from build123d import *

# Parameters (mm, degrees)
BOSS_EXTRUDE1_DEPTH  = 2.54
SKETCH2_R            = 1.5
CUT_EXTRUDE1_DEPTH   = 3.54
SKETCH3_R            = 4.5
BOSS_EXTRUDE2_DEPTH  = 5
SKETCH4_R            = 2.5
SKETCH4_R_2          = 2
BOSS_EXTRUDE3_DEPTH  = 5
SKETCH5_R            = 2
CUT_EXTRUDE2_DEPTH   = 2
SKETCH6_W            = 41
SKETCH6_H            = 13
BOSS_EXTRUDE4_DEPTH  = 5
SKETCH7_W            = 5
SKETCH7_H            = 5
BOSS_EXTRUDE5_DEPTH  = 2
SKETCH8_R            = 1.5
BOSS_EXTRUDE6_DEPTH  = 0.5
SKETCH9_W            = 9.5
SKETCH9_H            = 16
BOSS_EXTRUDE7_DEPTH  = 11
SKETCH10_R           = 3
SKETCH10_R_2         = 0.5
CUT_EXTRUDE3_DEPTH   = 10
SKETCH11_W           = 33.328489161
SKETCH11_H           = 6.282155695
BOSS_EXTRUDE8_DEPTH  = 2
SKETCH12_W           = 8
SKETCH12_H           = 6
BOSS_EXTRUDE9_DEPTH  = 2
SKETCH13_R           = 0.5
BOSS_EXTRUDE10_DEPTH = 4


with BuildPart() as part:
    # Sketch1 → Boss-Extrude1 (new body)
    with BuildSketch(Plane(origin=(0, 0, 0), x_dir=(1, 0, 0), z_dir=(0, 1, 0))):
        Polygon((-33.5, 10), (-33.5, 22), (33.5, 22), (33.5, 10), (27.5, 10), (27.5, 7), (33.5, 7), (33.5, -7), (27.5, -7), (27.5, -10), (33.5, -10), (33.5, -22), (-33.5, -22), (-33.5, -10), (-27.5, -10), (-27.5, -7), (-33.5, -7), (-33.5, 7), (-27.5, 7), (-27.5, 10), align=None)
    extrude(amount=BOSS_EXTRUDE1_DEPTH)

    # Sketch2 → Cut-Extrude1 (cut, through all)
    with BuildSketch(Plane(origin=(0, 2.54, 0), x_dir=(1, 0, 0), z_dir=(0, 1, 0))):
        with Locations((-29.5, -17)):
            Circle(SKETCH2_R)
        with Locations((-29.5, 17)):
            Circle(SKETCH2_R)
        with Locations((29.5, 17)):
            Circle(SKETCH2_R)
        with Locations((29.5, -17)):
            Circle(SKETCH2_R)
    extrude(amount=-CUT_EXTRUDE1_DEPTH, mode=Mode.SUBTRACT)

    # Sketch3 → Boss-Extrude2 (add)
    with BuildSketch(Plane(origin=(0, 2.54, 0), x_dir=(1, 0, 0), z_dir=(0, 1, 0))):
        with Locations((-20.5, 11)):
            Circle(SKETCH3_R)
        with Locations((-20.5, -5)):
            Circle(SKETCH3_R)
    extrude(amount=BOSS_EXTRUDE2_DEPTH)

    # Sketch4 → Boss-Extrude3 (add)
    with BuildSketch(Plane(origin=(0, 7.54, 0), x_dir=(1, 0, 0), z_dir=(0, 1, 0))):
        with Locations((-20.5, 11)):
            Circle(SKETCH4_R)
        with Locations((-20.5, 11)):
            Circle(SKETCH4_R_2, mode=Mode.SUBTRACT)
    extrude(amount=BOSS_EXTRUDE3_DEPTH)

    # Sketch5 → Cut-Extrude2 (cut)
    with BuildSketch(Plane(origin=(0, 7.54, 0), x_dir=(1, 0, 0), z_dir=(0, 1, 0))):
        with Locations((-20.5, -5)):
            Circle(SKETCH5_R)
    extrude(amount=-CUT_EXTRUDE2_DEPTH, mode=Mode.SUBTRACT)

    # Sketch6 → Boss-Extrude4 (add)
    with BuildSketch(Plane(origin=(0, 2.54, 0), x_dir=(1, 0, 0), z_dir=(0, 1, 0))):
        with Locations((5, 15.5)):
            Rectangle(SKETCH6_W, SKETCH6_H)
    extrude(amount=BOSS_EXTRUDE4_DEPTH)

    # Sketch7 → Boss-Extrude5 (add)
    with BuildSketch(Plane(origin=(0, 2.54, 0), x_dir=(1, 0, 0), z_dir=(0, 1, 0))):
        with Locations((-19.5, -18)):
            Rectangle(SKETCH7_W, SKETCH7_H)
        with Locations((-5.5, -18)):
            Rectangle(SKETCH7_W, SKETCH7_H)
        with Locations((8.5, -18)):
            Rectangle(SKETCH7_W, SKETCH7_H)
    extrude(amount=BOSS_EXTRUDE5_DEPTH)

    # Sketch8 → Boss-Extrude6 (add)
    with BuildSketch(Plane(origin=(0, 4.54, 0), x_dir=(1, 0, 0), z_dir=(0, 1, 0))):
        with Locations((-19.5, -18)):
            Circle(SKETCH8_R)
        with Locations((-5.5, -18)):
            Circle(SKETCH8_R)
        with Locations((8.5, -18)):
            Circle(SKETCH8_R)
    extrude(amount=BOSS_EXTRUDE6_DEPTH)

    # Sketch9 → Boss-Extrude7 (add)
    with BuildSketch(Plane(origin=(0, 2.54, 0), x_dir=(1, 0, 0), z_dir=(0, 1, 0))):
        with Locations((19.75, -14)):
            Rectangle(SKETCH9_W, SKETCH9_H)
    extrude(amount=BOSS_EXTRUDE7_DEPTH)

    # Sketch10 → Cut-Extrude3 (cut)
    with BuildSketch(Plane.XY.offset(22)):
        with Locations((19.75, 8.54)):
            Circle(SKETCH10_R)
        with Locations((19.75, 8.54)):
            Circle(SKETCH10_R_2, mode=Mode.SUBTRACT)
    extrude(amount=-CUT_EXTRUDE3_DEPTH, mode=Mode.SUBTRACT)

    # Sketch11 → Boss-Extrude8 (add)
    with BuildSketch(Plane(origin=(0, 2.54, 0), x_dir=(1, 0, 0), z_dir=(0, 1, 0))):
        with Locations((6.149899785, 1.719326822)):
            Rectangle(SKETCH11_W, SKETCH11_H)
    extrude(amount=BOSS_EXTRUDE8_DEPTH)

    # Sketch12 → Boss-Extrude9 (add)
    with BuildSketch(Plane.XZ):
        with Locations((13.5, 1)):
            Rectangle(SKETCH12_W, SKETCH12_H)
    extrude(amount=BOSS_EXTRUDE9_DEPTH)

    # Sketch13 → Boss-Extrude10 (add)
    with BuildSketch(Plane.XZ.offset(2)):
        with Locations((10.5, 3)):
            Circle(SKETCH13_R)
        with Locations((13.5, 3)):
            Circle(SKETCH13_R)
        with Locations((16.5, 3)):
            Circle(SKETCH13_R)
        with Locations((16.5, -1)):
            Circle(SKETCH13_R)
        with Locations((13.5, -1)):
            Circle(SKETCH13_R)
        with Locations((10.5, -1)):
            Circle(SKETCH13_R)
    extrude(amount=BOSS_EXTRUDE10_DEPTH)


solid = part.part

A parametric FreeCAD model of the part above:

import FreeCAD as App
import Part
import Sketcher
from FreeCAD import Vector


def add_polygon(sketch, points):
    """Adds a closed chain of lines whose ends are joined by coincident constraints."""
    first, n = sketch.GeometryCount, len(points)
    for a, b in zip(points, points[1:] + points[:1]):
        sketch.addGeometry(Part.LineSegment(App.Vector(*a, 0), App.Vector(*b, 0)), False)
    for i in range(n):
        sketch.addConstraint(Sketcher.Constraint("Coincident", first + i, 2, first + (i + 1) % n, 1))

doc = App.newDocument("Part")
body = doc.addObject("PartDesign::Body", "Body")

# Sketch on XZ plane
sketch1 = body.newObject("Sketcher::SketchObject", "Sketch")
sketch1.AttachmentSupport = (doc.getObject("XZ_Plane"), [""])
sketch1.MapMode = "FlatFace"
add_polygon(sketch1, [(-33.5, -22), (-33.5, -10), (-27.5, -10), (-27.5, -7), (-33.5, -7), (-33.5, 7), (-27.5, 7), (-27.5, 10), (-33.5, 10), (-33.5, 22), (33.5, 22), (33.5, 10), (27.5, 10), (27.5, 7), (33.5, 7), (33.5, -7), (27.5, -7), (27.5, -10), (33.5, -10), (33.5, -22)])  # lines 0-19
sketch1.addConstraint([
    Sketcher.Constraint("Vertical", 0),
    Sketcher.Constraint("Horizontal", 1),
    Sketcher.Constraint("Vertical", 2),
    Sketcher.Constraint("Horizontal", 3),
    Sketcher.Constraint("Vertical", 4),
    Sketcher.Constraint("Horizontal", 5),
    Sketcher.Constraint("Vertical", 6),
    Sketcher.Constraint("Horizontal", 7),
    Sketcher.Constraint("Vertical", 8),
    Sketcher.Constraint("Horizontal", 9),
    Sketcher.Constraint("Vertical", 10),
    Sketcher.Constraint("Horizontal", 11),
    Sketcher.Constraint("Vertical", 12),
    Sketcher.Constraint("Horizontal", 13),
    Sketcher.Constraint("Vertical", 14),
    Sketcher.Constraint("Horizontal", 15),
    Sketcher.Constraint("Vertical", 16),
    Sketcher.Constraint("Horizontal", 17),
    Sketcher.Constraint("Vertical", 18),
    Sketcher.Constraint("Horizontal", 19),
    Sketcher.Constraint("Symmetric", 0, 2, 10, 2, -1, 1),
    Sketcher.Constraint("Symmetric", 2, 2, 12, 2, -1, 1),
    Sketcher.Constraint("Symmetric", 4, 2, 14, 2, -1, 1),
    Sketcher.Constraint("Symmetric", 6, 2, 16, 2, -1, 1),
    Sketcher.Constraint("Symmetric", 8, 2, 18, 2, -1, 1),
    Sketcher.Constraint("Symmetric", 7, 2, 10, 2, -2),
    Sketcher.Constraint("Symmetric", 5, 2, 12, 2, -2),
    Sketcher.Constraint("Vertical", 0, 2, 3, 2),
    Sketcher.Constraint("DistanceX", 1, 1, 1, 2, 6.0),
    Sketcher.Constraint("DistanceX", 9, 1, 9, 2, 67.0),
    Sketcher.Constraint("DistanceY", 0, 1, 0, 2, 12.0),
    Sketcher.Constraint("DistanceY", 2, 1, 2, 2, 3.0),
    Sketcher.Constraint("DistanceY", 4, 1, 4, 2, 14.0),
])
pad1 = body.newObject("PartDesign::Pad", "Pad")
pad1.Profile = sketch1
pad1.Length = 2.54
pad1.Reversed = True

# Sketch on XZ plane
sketch2 = body.newObject("Sketcher::SketchObject", "Sketch001")
sketch2.AttachmentSupport = (doc.getObject("XZ_Plane"), [""])
sketch2.MapMode = "FlatFace"
sketch2.AttachmentOffset = App.Placement(Vector(0, 0, -2.54), App.Rotation())
sketch2.addGeometry([
    Part.Circle(Vector(-29.5, 17, 0), Vector(0, 0, 1), 1.5),
    Part.Circle(Vector(-29.5, -17, 0), Vector(0, 0, 1), 1.5),
    Part.Circle(Vector(29.5, -17, 0), Vector(0, 0, 1), 1.5),
    Part.Circle(Vector(29.5, 17, 0), Vector(0, 0, 1), 1.5),
], False)
sketch2.addConstraint([
    Sketcher.Constraint("Equal", 0, 1),
    Sketcher.Constraint("Equal", 1, 2),
    Sketcher.Constraint("Equal", 2, 3),
    Sketcher.Constraint("Symmetric", 0, 3, 2, 3, -1, 1),
    Sketcher.Constraint("Symmetric", 1, 3, 3, 3, -1, 1),
    Sketcher.Constraint("Symmetric", 1, 3, 2, 3, -2),
    Sketcher.Constraint("Diameter", 0, 3.0),
    Sketcher.Constraint("DistanceY", -1, 1, 0, 3, 17.0),
    Sketcher.Constraint("DistanceX", 1, 3, 2, 3, 59.0),
])
pocket1 = body.newObject("PartDesign::Pocket", "Pocket")
pocket1.Profile = sketch2
pocket1.Type = "ThroughAll"
pocket1.Reversed = True

# Sketch on XZ plane
sketch3 = body.newObject("Sketcher::SketchObject", "Sketch002")
sketch3.AttachmentSupport = (doc.getObject("XZ_Plane"), [""])
sketch3.MapMode = "FlatFace"
sketch3.AttachmentOffset = App.Placement(Vector(0, 0, -2.54), App.Rotation())
sketch3.addGeometry([
    Part.Circle(Vector(-20.5, -11, 0), Vector(0, 0, 1), 4.5),
    Part.Circle(Vector(-20.5, 5, 0), Vector(0, 0, 1), 4.5),
], False)
sketch3.addConstraint([
    Sketcher.Constraint("Equal", 0, 1),
    Sketcher.Constraint("Vertical", 0, 3, 1, 3),
    Sketcher.Constraint("Diameter", 0, 9.0),
    Sketcher.Constraint("DistanceY", 0, 3, -1, 1, 11.0),
    Sketcher.Constraint("DistanceY", -1, 1, 1, 3, 5.0),
    Sketcher.Constraint("DistanceX", 0, 3, -1, 1, 20.5),
])
pad2 = body.newObject("PartDesign::Pad", "Pad001")
pad2.Profile = sketch3
pad2.Length = 5
pad2.Reversed = True

# Sketch on XZ plane
sketch4 = body.newObject("Sketcher::SketchObject", "Sketch003")
sketch4.AttachmentSupport = (doc.getObject("XZ_Plane"), [""])
sketch4.MapMode = "FlatFace"
sketch4.AttachmentOffset = App.Placement(Vector(0, 0, -7.54), App.Rotation())
sketch4.addGeometry([
    Part.Circle(Vector(-20.5, -11, 0), Vector(0, 0, 1), 2.5),
    Part.Circle(Vector(-20.5, -11, 0), Vector(0, 0, 1), 2),
], False)
sketch4.addConstraint([
    Sketcher.Constraint("Coincident", 1, 3, 0, 3),
    Sketcher.Constraint("Diameter", 0, 5.0),
    Sketcher.Constraint("Diameter", 1, 4.0),
    Sketcher.Constraint("DistanceY", 0, 3, -1, 1, 11.0),
    Sketcher.Constraint("DistanceX", 0, 3, -1, 1, 20.5),
])
pad3 = body.newObject("PartDesign::Pad", "Pad002")
pad3.Profile = sketch4
pad3.Length = 5
pad3.Reversed = True

# Sketch on XZ plane
sketch5 = body.newObject("Sketcher::SketchObject", "Sketch004")
sketch5.AttachmentSupport = (doc.getObject("XZ_Plane"), [""])
sketch5.MapMode = "FlatFace"
sketch5.AttachmentOffset = App.Placement(Vector(0, 0, -7.54), App.Rotation())
sketch5.addGeometry(Part.Circle(Vector(-20.5, 5, 0), Vector(0, 0, 1), 2), False)
sketch5.addConstraint([
    Sketcher.Constraint("Diameter", 0, 4.0),
    Sketcher.Constraint("DistanceY", -1, 1, 0, 3, 5.0),
    Sketcher.Constraint("DistanceX", 0, 3, -1, 1, 20.5),
])
pocket2 = body.newObject("PartDesign::Pocket", "Pocket001")
pocket2.Profile = sketch5
pocket2.Length = 2
pocket2.Reversed = True

# Sketch on XZ plane
sketch6 = body.newObject("Sketcher::SketchObject", "Sketch005")
sketch6.AttachmentSupport = (doc.getObject("XZ_Plane"), [""])
sketch6.MapMode = "FlatFace"
sketch6.AttachmentOffset = App.Placement(Vector(0, 0, -2.54), App.Rotation())
add_polygon(sketch6, [(-16, -22), (-16, -9), (26, -9), (26, -22)])  # lines 0-3
sketch6.addConstraint([
    Sketcher.Constraint("Vertical", 0),
    Sketcher.Constraint("Horizontal", 1),
    Sketcher.Constraint("Vertical", 2),
    Sketcher.Constraint("Horizontal", 3),
    Sketcher.Constraint("DistanceX", 1, 1, 1, 2, 41.0),
    Sketcher.Constraint("DistanceY", 0, 1, 0, 2, 13.0),
    Sketcher.Constraint("DistanceY", 0, 2, -1, 1, 9.0),
    Sketcher.Constraint("DistanceX", 0, 2, -1, 1, 15.5),
])
pad4 = body.newObject("PartDesign::Pad", "Pad003")
pad4.Profile = sketch6
pad4.Length = 5
pad4.Reversed = True

# Sketch on XZ plane
sketch7 = body.newObject("Sketcher::SketchObject", "Sketch006")
sketch7.AttachmentSupport = (doc.getObject("XZ_Plane"), [""])
sketch7.MapMode = "FlatFace"
sketch7.AttachmentOffset = App.Placement(Vector(0, 0, -2.54), App.Rotation())
add_polygon(sketch7, [(-22, 16), (-22, 20), (-17, 20), (-17, 16)])  # lines 0-3
add_polygon(sketch7, [(-8, 16), (-8, 20), (-3, 20), (-3, 16)])  # lines 4-7
add_polygon(sketch7, [(6, 16), (6, 20), (11, 20), (11, 16)])  # lines 8-11
sketch7.addConstraint([
    Sketcher.Constraint("Vertical", 0),
    Sketcher.Constraint("Horizontal", 1),
    Sketcher.Constraint("Vertical", 2),
    Sketcher.Constraint("Horizontal", 3),
    Sketcher.Constraint("Vertical", 4),
    Sketcher.Constraint("Horizontal", 5),
    Sketcher.Constraint("Vertical", 6),
    Sketcher.Constraint("Horizontal", 7),
    Sketcher.Constraint("Vertical", 8),
    Sketcher.Constraint("Horizontal", 9),
    Sketcher.Constraint("Vertical", 10),
    Sketcher.Constraint("Horizontal", 11),
    Sketcher.Constraint("Horizontal", 1, 2, 4, 2),
    Sketcher.Constraint("Horizontal", 3, 2, 6, 2),
    Sketcher.Constraint("Horizontal", 5, 2, 8, 2),
    Sketcher.Constraint("Horizontal", 7, 2, 10, 2),
    Sketcher.Constraint("Equal", 3, 5),
    Sketcher.Constraint("Equal", 7, 9),
    Sketcher.Constraint("Equal", 11, 0),
    Sketcher.Constraint("DistanceX", 1, 1, 1, 2, 5.0),
    Sketcher.Constraint("DistanceX", 0, 2, -1, 1, 22.0),
    Sketcher.Constraint("DistanceX", 4, 2, -1, 1, 8.0),
    Sketcher.Constraint("DistanceX", -1, 1, 8, 2, 6.0),
    Sketcher.Constraint("DistanceY", -1, 1, 0, 2, 20.5),
])
pad5 = body.newObject("PartDesign::Pad", "Pad004")
pad5.Profile = sketch7
pad5.Length = 2
pad5.Reversed = True

# Sketch on XZ plane
sketch8 = body.newObject("Sketcher::SketchObject", "Sketch007")
sketch8.AttachmentSupport = (doc.getObject("XZ_Plane"), [""])
sketch8.MapMode = "FlatFace"
sketch8.AttachmentOffset = App.Placement(Vector(0, 0, -4.54), App.Rotation())
sketch8.addGeometry([
    Part.Circle(Vector(-19.5, 18, 0), Vector(0, 0, 1), 1.5),
    Part.Circle(Vector(-5.5, 18, 0), Vector(0, 0, 1), 1.5),
    Part.Circle(Vector(8.5, 18, 0), Vector(0, 0, 1), 1.5),
], False)
sketch8.addConstraint([
    Sketcher.Constraint("Equal", 0, 1),
    Sketcher.Constraint("Equal", 1, 2),
    Sketcher.Constraint("Horizontal", 0, 3, 1, 3),
    Sketcher.Constraint("Horizontal", 1, 3, 2, 3),
    Sketcher.Constraint("Diameter", 0, 3.0),
    Sketcher.Constraint("DistanceY", -1, 1, 0, 3, 18.0),
    Sketcher.Constraint("DistanceX", 0, 3, 1, 3, 14.0),
    Sketcher.Constraint("DistanceX", 1, 3, 2, 3, 14.0),
    Sketcher.Constraint("DistanceX", 0, 3, -1, 1, 19.5),
])
pad6 = body.newObject("PartDesign::Pad", "Pad005")
pad6.Profile = sketch8
pad6.Length = 0.5
pad6.Reversed = True

# Sketch on XZ plane
sketch9 = body.newObject("Sketcher::SketchObject", "Sketch008")
sketch9.AttachmentSupport = (doc.getObject("XZ_Plane"), [""])
sketch9.MapMode = "FlatFace"
sketch9.AttachmentOffset = App.Placement(Vector(0, 0, -2.54), App.Rotation())
add_polygon(sketch9, [(15, 6), (15, 22), (24, 22), (24, 6)])  # lines 0-3
sketch9.addConstraint([
    Sketcher.Constraint("Vertical", 0),
    Sketcher.Constraint("Horizontal", 1),
    Sketcher.Constraint("Vertical", 2),
    Sketcher.Constraint("Horizontal", 3),
    Sketcher.Constraint("DistanceY", 0, 1, 0, 2, 16.0),
    Sketcher.Constraint("DistanceX", 1, 1, 1, 2, 9.5),
    Sketcher.Constraint("DistanceX", -1, 1, 0, 2, 15.0),
    Sketcher.Constraint("DistanceY", -1, 1, 0, 2, 22.0),
])
pad7 = body.newObject("PartDesign::Pad", "Pad006")
pad7.Profile = sketch9
pad7.Length = 11
pad7.Reversed = True

# Sketch on XY plane
sketch10 = body.newObject("Sketcher::SketchObject", "Sketch009")
sketch10.AttachmentSupport = (doc.getObject("XY_Plane"), [""])
sketch10.MapMode = "FlatFace"
sketch10.AttachmentOffset = App.Placement(Vector(0, 0, 22), App.Rotation())
sketch10.addGeometry([
    Part.Circle(Vector(19.8, 8.5, 0), Vector(0, 0, 1), 3),
    Part.Circle(Vector(19.8, 8.5, 0), Vector(0, 0, 1), 0.5),
], False)
sketch10.addConstraint([
    Sketcher.Constraint("Coincident", 1, 3, 0, 3),
    Sketcher.Constraint("Diameter", 0, 6.0),
    Sketcher.Constraint("Diameter", 1, 1.0),
    Sketcher.Constraint("DistanceX", -1, 1, 0, 3, 19.75),
    Sketcher.Constraint("DistanceY", -1, 1, 0, 3, 8.54),
])
pocket3 = body.newObject("PartDesign::Pocket", "Pocket002")
pocket3.Profile = sketch10
pocket3.Length = 10

# Sketch on XZ plane
sketch11 = body.newObject("Sketcher::SketchObject", "Sketch010")
sketch11.AttachmentSupport = (doc.getObject("XZ_Plane"), [""])
sketch11.MapMode = "FlatFace"
sketch11.AttachmentOffset = App.Placement(Vector(0, 0, -2.54), App.Rotation())
add_polygon(sketch11, [(-11, -5), (-11, 1), (23, 1), (23, -5)])  # lines 0-3
sketch11.addConstraint([
    Sketcher.Constraint("Vertical", 0),
    Sketcher.Constraint("Horizontal", 1),
    Sketcher.Constraint("Vertical", 2),
    Sketcher.Constraint("Horizontal", 3),
    Sketcher.Constraint("DistanceX", 1, 1, 1, 2, 33.328489),
    Sketcher.Constraint("DistanceY", 0, 1, 0, 2, 6.282156),
    Sketcher.Constraint("DistanceY", -1, 1, 0, 2, 1.421751),
    Sketcher.Constraint("DistanceX", 0, 2, -1, 1, 10.514345),
])
pad8 = body.newObject("PartDesign::Pad", "Pad007")
pad8.Profile = sketch11
pad8.Length = 2
pad8.Reversed = True

# Sketch on XZ plane
sketch12 = body.newObject("Sketcher::SketchObject", "Sketch011")
sketch12.AttachmentSupport = (doc.getObject("XZ_Plane"), [""])
sketch12.MapMode = "FlatFace"
add_polygon(sketch12, [(10, 4), (10, -2), (18, -2), (18, 4)])  # lines 0-3
sketch12.addConstraint([
    Sketcher.Constraint("Vertical", 0),
    Sketcher.Constraint("Horizontal", 1),
    Sketcher.Constraint("Vertical", 2),
    Sketcher.Constraint("Horizontal", 3),
    Sketcher.Constraint("DistanceX", 1, 1, 1, 2, 8.0),
    Sketcher.Constraint("DistanceY", 0, 2, 0, 1, 6.0),
    Sketcher.Constraint("DistanceY", 0, 2, -1, 1, 2.0),
    Sketcher.Constraint("DistanceX", -1, 1, 0, 2, 9.5),
])
pad9 = body.newObject("PartDesign::Pad", "Pad008")
pad9.Profile = sketch12
pad9.Length = 2

# Sketch on XZ plane
sketch13 = body.newObject("Sketcher::SketchObject", "Sketch012")
sketch13.AttachmentSupport = (doc.getObject("XZ_Plane"), [""])
sketch13.MapMode = "FlatFace"
sketch13.AttachmentOffset = App.Placement(Vector(0, 0, 2), App.Rotation())
sketch13.addGeometry([
    Part.Circle(Vector(10.5, 3, 0), Vector(0, 0, 1), 0.5),  # 0
    Part.Circle(Vector(13.5, 3, 0), Vector(0, 0, 1), 0.5),  # 1
    Part.Circle(Vector(16.5, 3, 0), Vector(0, 0, 1), 0.5),  # 2
    Part.Circle(Vector(16.5, -1, 0), Vector(0, 0, 1), 0.5),  # 3
    Part.Circle(Vector(13.5, -1, 0), Vector(0, 0, 1), 0.5),  # 4
    Part.Circle(Vector(10.5, -1, 0), Vector(0, 0, 1), 0.5),  # 5
], False)
sketch13.addConstraint([
    Sketcher.Constraint("Equal", 0, 1),
    Sketcher.Constraint("Equal", 1, 2),
    Sketcher.Constraint("Equal", 2, 3),
    Sketcher.Constraint("Equal", 3, 4),
    Sketcher.Constraint("Equal", 4, 5),
    Sketcher.Constraint("Horizontal", 0, 3, 1, 3),
    Sketcher.Constraint("Horizontal", 1, 3, 2, 3),
    Sketcher.Constraint("Horizontal", 3, 3, 4, 3),
    Sketcher.Constraint("Horizontal", 4, 3, 5, 3),
    Sketcher.Constraint("Vertical", 2, 3, 3, 3),
    Sketcher.Constraint("Vertical", 1, 3, 4, 3),
    Sketcher.Constraint("Vertical", 0, 3, 5, 3),
    Sketcher.Constraint("Diameter", 0, 1.0),
    Sketcher.Constraint("DistanceY", -1, 1, 0, 3, 3.0),
    Sketcher.Constraint("DistanceY", 3, 3, -1, 1, 1.0),
    Sketcher.Constraint("DistanceX", 0, 3, 1, 3, 3.0),
    Sketcher.Constraint("DistanceX", 1, 3, 2, 3, 3.0),
    Sketcher.Constraint("DistanceX", -1, 1, 0, 3, 10.5),
])
pad10 = body.newObject("PartDesign::Pad", "Pad009")
pad10.Profile = sketch13
pad10.Length = 4

doc.recompute()
